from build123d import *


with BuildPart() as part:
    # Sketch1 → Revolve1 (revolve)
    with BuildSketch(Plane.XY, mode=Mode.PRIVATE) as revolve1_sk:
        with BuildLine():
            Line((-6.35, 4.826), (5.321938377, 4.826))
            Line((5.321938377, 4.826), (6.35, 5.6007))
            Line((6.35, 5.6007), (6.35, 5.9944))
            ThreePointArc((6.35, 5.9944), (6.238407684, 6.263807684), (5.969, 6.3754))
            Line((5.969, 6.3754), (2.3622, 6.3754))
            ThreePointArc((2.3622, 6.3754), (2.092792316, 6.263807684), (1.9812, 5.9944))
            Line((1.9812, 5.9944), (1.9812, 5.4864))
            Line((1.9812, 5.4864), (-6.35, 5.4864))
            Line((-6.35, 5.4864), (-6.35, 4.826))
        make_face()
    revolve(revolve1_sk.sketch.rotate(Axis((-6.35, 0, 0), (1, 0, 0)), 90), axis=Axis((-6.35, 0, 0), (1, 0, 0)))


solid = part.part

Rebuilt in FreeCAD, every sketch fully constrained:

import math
import FreeCAD as App
import Part
import Sketcher
Q = App.Units.Quantity

doc = App.newDocument("Part")
params = doc.addObject("Spreadsheet::Sheet", "Params")
for row, (alias, value) in enumerate([
    ("sketch1_radius", "0.015 in"),
    ("sketch1_height", "0.02 in"),
    ("sketch1_width", "0.142 in"),
    ("sketch1_width2", "0.328 in"),
    ("sketch1_height2", "0.026 in"),
    ("revolution_angle", "360 deg"),
], start=1):
    params.set(f"A{row}", alias)
    params.set(f"B{row}", "=" + value)
    params.setAlias(f"B{row}", alias)

body = doc.addObject("PartDesign::Body", "Body")

sketch1 = body.newObject("Sketcher::SketchObject", "Sketch")
sketch1.AttachmentSupport = (doc.getObject("XY_Plane"), [""])
sketch1.MapMode = "FlatFace"
sketch1.addGeometry([
    Part.LineSegment(App.Vector(-6.35, 4.83, 0), App.Vector(5.32, 4.83, 0)),
    Part.LineSegment(App.Vector(5.32, 4.83, 0), App.Vector(6.35, 5.6, 0)),
    Part.LineSegment(App.Vector(6.35, 5.6, 0), App.Vector(6.35, 5.99, 0)),
    Part.ArcOfCircle(Part.Circle(App.Vector(5.97, 5.99, 0), App.Vector(0, 0, 1), 0.38), math.radians(0), math.radians(90)),
    Part.LineSegment(App.Vector(5.97, 6.38, 0), App.Vector(2.36, 6.38, 0)),
    Part.ArcOfCircle(Part.Circle(App.Vector(2.36, 5.99, 0), App.Vector(0, 0, 1), 0.38), math.radians(90), math.radians(180)),
    Part.LineSegment(App.Vector(1.98, 5.99, 0), App.Vector(1.98, 5.49, 0)),
    Part.LineSegment(App.Vector(1.98, 5.49, 0), App.Vector(-6.35, 5.49, 0)),
    Part.LineSegment(App.Vector(-6.35, 5.49, 0), App.Vector(-6.35, 4.83, 0)),
], False)
sketch1.addConstraint([
    Sketcher.Constraint("Coincident", 0, 2, 1, 1),
    Sketcher.Constraint("Coincident", 1, 2, 2, 1),
    Sketcher.Constraint("Tangent", 2, 2, 3, 1),
    Sketcher.Constraint("Tangent", 3, 2, 4, 1),
    Sketcher.Constraint("Tangent", 4, 2, 5, 1),
    Sketcher.Constraint("Tangent", 5, 2, 6, 1),
    Sketcher.Constraint("Coincident", 6, 2, 7, 1),
    Sketcher.Constraint("Coincident", 7, 2, 8, 1),
    Sketcher.Constraint("Coincident", 8, 2, 0, 1),
    Sketcher.Constraint("Horizontal", 0),
    Sketcher.Constraint("Vertical", 2),
    Sketcher.Constraint("Horizontal", 4),
    Sketcher.Constraint("Vertical", 6),
    Sketcher.Constraint("Horizontal", 7),
    Sketcher.Constraint("Vertical", 8),
    Sketcher.Constraint("Equal", 3, 5),
    Sketcher.Constraint("Angle", 1, Q("37 deg")),
    Sketcher.Constraint("Radius", 3, Q("0.015 in")),
    Sketcher.Constraint("DistanceY", 6, 2, 6, 1, Q("0.02 in")),
    Sketcher.Constraint("DistanceX", 4, 2, 4, 1, Q("0.142 in")),
    Sketcher.Constraint("DistanceX", 7, 2, 7, 1, Q("0.328 in")),
    Sketcher.Constraint("DistanceY", 8, 2, 8, 1, Q("0.026 in")),
    Sketcher.Constraint("DistanceY", -1, 1, 0, 2, Q("0.19 in")),
    Sketcher.Constraint("DistanceX", -1, 1, 1, 2, Q("0.25 in")),
    Sketcher.Constraint("DistanceY", 2, 1, 2, 2, Q("0.0155 in")),
])
sketch1.setExpression("Constraints[17]", "Params.sketch1_radius")
sketch1.setExpression("Constraints[18]", "Params.sketch1_height")
sketch1.setExpression("Constraints[19]", "Params.sketch1_width")
sketch1.setExpression("Constraints[20]", "Params.sketch1_width2")
sketch1.setExpression("Constraints[21]", "Params.sketch1_height2")
revolution = body.newObject("PartDesign::Revolution", "Revolution")
revolution.Profile = sketch1
revolution.ReferenceAxis = (sketch1, ["H_Axis"])
revolution.setExpression("Angle", "Params.revolution_angle")

doc.recompute()
